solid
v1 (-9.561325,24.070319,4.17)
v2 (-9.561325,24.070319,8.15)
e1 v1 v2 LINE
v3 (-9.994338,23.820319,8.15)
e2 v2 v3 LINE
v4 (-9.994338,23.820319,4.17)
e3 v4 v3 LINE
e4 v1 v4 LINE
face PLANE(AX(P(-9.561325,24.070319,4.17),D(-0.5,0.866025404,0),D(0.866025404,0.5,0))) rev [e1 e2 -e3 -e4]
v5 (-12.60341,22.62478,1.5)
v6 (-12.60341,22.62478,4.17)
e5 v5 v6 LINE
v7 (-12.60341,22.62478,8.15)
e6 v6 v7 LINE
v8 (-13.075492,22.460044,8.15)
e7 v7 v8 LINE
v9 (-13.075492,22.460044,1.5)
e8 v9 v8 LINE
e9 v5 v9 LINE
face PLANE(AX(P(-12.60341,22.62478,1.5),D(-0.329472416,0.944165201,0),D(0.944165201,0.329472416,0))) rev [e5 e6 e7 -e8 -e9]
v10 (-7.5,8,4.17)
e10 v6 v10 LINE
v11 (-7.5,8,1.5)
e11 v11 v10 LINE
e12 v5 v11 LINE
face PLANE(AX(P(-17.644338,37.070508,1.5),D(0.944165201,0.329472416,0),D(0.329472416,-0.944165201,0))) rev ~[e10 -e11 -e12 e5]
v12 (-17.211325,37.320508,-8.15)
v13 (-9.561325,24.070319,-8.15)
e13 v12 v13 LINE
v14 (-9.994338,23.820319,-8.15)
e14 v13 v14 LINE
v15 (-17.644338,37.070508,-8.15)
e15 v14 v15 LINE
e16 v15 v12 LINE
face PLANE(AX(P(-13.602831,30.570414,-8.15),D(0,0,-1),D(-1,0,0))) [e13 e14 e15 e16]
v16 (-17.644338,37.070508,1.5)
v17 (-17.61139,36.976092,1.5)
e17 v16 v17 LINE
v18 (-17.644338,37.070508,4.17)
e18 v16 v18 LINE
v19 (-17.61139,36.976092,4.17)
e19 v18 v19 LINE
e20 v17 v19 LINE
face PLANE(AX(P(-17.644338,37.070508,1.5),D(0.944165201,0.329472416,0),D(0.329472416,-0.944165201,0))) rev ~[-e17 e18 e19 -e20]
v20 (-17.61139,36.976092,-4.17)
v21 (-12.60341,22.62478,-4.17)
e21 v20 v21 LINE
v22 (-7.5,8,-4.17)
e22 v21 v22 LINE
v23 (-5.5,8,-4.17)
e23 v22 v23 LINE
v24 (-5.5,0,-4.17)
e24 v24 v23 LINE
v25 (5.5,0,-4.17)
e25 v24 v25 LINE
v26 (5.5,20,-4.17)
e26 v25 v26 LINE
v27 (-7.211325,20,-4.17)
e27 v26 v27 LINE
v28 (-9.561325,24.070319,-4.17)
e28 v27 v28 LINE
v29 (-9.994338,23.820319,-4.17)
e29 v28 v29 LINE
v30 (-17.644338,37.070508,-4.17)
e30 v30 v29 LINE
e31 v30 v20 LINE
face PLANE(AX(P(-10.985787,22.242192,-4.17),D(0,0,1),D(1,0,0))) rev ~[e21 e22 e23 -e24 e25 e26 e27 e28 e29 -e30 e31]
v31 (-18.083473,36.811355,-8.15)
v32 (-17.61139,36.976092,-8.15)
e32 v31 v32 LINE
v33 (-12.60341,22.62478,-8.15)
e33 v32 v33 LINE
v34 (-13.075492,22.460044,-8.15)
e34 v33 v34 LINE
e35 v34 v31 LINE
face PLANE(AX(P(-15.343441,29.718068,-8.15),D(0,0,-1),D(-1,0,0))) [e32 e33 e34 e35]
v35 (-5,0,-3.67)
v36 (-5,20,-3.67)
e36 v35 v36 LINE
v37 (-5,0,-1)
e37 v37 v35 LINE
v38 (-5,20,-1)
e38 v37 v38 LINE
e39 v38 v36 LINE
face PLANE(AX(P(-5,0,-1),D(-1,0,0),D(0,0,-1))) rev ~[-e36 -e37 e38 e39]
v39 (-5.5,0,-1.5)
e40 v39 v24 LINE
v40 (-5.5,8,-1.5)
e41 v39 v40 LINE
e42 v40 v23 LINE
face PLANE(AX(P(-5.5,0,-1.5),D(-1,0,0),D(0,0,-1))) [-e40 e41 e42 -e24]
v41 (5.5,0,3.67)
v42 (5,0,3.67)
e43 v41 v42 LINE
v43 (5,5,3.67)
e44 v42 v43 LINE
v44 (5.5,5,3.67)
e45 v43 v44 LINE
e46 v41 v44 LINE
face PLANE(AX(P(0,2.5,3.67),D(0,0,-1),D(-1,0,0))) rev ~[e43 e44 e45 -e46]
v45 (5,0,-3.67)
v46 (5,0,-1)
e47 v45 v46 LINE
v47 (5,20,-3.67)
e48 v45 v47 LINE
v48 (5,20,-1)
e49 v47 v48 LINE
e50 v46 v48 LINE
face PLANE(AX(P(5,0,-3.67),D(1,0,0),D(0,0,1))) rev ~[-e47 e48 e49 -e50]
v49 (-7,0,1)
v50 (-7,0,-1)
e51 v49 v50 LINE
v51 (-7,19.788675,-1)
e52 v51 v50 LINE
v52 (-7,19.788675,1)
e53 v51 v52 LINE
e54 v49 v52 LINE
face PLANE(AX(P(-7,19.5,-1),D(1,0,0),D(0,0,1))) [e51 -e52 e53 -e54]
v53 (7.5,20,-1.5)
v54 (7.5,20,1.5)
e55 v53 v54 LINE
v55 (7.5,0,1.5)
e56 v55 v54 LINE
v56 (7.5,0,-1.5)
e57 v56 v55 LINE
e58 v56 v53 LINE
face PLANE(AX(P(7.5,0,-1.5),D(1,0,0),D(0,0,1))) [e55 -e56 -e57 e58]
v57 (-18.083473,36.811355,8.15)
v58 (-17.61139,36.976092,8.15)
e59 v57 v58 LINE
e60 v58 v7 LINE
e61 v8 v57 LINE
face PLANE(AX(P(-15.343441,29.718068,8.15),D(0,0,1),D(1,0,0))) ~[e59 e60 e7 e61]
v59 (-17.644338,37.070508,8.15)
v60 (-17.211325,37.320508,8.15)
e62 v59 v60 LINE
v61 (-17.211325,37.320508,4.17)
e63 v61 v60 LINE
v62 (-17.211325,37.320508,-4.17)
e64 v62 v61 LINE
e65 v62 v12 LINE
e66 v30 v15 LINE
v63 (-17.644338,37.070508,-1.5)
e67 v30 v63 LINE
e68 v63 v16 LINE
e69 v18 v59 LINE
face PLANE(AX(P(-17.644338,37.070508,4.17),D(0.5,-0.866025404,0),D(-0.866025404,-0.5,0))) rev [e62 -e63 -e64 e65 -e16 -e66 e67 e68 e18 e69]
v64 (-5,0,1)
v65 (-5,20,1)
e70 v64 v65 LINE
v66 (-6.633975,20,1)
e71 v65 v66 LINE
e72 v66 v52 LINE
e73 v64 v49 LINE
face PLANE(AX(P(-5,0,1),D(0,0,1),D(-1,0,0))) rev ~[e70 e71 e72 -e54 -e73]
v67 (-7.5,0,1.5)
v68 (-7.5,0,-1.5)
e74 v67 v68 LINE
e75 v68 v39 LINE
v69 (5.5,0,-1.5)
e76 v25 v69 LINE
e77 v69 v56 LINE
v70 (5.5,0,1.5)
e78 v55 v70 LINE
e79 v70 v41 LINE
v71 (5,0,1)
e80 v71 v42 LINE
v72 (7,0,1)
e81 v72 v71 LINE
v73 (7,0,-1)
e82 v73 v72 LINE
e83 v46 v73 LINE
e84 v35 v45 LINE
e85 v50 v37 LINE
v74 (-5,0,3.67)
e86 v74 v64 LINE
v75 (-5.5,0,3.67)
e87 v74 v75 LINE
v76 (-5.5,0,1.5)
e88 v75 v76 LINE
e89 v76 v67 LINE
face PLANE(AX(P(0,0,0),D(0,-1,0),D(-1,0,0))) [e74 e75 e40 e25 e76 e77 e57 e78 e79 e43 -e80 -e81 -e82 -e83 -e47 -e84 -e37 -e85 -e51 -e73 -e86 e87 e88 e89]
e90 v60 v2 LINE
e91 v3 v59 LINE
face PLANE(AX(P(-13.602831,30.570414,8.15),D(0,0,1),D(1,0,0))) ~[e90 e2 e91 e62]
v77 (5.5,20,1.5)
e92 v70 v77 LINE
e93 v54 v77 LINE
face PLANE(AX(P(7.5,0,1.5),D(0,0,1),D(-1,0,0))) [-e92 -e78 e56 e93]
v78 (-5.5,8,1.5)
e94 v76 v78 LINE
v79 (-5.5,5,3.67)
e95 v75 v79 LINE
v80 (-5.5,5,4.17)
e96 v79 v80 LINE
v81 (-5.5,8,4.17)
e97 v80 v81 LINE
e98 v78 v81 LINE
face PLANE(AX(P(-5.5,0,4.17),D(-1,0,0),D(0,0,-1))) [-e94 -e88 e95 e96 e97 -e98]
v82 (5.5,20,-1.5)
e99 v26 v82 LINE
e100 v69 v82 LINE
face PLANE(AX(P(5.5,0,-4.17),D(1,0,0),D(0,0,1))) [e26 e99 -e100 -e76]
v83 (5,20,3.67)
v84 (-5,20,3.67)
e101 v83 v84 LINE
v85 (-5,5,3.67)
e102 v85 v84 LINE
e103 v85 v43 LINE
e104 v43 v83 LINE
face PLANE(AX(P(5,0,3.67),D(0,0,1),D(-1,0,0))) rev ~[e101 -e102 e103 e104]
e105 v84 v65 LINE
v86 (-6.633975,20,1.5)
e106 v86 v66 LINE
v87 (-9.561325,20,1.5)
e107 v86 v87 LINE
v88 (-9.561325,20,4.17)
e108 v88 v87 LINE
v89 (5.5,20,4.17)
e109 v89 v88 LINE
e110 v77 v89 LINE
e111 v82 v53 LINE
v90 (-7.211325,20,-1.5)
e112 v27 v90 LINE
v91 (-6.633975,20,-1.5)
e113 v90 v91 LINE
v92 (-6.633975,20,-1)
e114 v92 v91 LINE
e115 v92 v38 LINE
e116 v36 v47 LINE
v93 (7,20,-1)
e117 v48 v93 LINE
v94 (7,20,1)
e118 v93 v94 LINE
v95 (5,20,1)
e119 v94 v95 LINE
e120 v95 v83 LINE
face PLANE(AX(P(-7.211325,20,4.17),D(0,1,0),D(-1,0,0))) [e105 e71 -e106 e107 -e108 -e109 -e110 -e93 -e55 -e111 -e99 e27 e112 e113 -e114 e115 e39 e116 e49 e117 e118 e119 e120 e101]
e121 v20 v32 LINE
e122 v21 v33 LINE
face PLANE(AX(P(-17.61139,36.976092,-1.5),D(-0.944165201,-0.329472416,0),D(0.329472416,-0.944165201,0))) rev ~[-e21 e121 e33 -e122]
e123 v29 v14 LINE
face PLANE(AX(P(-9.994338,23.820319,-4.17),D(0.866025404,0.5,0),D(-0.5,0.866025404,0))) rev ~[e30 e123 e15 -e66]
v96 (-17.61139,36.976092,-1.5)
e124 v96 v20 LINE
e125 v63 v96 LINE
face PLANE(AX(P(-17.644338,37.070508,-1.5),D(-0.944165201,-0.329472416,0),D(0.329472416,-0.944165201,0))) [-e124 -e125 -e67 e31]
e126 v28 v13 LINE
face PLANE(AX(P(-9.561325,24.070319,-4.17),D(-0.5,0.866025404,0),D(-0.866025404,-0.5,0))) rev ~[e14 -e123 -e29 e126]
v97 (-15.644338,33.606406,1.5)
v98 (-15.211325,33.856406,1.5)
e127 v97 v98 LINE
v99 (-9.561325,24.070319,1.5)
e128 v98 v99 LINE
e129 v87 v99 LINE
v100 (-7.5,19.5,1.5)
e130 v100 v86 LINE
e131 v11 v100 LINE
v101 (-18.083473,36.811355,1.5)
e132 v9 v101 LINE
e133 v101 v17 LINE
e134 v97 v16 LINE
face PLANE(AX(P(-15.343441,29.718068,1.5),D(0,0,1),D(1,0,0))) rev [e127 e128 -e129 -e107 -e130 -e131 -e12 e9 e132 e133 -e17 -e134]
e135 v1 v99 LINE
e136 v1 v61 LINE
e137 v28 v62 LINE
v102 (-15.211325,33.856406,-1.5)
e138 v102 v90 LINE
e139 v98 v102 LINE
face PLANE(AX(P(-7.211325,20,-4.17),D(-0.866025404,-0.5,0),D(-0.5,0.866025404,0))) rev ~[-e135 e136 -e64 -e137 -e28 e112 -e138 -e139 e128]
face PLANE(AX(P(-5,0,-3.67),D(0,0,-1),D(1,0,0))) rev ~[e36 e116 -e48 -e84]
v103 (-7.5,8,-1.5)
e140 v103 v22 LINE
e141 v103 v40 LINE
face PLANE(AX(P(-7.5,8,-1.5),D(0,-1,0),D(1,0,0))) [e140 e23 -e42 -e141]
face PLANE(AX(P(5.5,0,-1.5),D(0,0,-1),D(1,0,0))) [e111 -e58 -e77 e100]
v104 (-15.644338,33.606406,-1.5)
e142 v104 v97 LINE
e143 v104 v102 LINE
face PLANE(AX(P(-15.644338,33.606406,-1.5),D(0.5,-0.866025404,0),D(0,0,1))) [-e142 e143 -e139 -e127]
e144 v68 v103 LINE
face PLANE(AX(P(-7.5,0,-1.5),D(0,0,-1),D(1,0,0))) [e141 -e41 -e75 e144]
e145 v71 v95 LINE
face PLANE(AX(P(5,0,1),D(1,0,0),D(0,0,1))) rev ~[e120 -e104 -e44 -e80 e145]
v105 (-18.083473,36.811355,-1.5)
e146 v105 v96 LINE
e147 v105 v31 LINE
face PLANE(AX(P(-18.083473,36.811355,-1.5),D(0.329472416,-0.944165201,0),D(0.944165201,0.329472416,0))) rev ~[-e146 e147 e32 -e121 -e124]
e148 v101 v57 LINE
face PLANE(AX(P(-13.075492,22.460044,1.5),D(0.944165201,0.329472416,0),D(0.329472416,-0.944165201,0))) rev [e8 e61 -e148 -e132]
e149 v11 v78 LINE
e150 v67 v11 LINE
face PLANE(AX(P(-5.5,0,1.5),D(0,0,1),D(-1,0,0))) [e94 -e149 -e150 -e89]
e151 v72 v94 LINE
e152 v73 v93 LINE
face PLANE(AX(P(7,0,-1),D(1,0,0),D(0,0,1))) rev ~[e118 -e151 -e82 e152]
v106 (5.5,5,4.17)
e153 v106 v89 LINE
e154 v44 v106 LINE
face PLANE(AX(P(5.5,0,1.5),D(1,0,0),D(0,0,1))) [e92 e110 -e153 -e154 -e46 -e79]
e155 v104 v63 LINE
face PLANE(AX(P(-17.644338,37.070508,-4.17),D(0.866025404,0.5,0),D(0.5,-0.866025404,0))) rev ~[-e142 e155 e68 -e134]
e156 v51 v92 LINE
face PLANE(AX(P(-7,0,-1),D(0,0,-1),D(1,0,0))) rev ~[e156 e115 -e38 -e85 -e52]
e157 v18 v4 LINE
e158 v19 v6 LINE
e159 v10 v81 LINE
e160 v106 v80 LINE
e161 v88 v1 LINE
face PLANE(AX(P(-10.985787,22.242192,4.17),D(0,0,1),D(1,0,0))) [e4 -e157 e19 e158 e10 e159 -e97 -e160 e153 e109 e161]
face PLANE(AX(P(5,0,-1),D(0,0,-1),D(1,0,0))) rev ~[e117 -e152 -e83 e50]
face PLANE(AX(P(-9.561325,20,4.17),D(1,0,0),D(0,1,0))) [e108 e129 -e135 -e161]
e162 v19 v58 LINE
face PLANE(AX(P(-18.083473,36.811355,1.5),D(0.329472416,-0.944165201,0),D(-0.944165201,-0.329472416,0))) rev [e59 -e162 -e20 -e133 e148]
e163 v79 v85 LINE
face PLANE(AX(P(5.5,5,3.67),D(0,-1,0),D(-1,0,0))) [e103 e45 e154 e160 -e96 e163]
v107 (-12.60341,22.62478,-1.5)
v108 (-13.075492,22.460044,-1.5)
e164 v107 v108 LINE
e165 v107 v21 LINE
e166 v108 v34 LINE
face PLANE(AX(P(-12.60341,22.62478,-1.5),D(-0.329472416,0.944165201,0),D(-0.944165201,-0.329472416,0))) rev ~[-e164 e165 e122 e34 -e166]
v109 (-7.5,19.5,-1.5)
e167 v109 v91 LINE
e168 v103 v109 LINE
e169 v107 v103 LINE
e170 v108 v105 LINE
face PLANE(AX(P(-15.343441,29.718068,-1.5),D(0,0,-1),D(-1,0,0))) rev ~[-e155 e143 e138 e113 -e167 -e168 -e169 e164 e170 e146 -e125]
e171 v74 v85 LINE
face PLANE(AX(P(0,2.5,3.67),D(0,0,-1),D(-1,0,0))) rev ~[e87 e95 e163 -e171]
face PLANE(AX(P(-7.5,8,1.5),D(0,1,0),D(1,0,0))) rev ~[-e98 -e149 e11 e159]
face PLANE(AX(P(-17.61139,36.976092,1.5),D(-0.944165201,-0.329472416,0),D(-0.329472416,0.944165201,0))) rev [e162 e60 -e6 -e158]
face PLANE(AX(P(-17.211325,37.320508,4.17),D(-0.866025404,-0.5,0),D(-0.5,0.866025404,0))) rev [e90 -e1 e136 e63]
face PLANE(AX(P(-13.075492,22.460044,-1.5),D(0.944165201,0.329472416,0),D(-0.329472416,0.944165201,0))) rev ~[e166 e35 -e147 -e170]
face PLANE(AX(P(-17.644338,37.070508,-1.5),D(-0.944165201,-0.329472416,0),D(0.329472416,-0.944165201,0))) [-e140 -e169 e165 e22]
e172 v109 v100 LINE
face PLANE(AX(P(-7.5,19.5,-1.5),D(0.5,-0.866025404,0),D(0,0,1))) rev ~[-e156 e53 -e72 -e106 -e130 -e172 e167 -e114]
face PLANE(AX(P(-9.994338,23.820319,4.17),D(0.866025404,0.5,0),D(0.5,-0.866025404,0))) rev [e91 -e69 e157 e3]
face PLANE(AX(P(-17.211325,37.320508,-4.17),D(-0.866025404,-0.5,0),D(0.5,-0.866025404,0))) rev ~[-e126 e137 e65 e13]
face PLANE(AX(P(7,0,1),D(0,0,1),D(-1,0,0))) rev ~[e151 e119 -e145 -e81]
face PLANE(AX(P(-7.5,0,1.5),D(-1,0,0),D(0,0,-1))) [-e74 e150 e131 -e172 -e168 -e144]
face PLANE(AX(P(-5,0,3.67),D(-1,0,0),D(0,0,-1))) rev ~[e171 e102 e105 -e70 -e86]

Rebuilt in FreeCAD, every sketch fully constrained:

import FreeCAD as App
import Part
import Sketcher
Q = App.Units.Quantity


def add_polygon(sketch, points):
    """Adds a closed chain of lines whose ends are joined by coincident constraints."""
    first, n = sketch.GeometryCount, len(points)
    for a, b in zip(points, points[1:] + points[:1]):
        sketch.addGeometry(Part.LineSegment(App.Vector(*a, 0), App.Vector(*b, 0)), False)
    for i in range(n):
        sketch.addConstraint(Sketcher.Constraint("Coincident", first + i, 2, first + (i + 1) % n, 1))

doc = App.newDocument("Part")
body = doc.addObject("PartDesign::Body", "Body")

# Sketch on XZ plane
sketch1 = body.newObject("Sketcher::SketchObject", "Sketch")
sketch1.AttachmentSupport = (doc.getObject("XZ_Plane"), [""])
sketch1.MapMode = "FlatFace"
add_polygon(sketch1, [(-5.5, 4.2), (5.5, 4.2), (5.5, 1.5), (7.5, 1.5), (7.5, -1.5), (5.5, -1.5), (5.5, -4.2), (-5.5, -4.2), (-5.5, -1.5), (-7.5, -1.5), (-7.5, 1.5), (-5.5, 1.5)])  # lines 0-11
add_polygon(sketch1, [(-5, -1), (-5, -3.7), (5, -3.7), (5, -1), (7, -1), (7, 1), (5, 1), (5, 3.7), (-5, 3.7), (-5, 1), (-7, 1), (-7, -1)])  # lines 12-23
sketch1.addConstraint([
    Sketcher.Constraint("Horizontal", 0),
    Sketcher.Constraint("Vertical", 1),
    Sketcher.Constraint("Horizontal", 2),
    Sketcher.Constraint("Vertical", 3),
    Sketcher.Constraint("Horizontal", 4),
    Sketcher.Constraint("Vertical", 5),
    Sketcher.Constraint("Horizontal", 6),
    Sketcher.Constraint("Vertical", 7),
    Sketcher.Constraint("Horizontal", 8),
    Sketcher.Constraint("Vertical", 9),
    Sketcher.Constraint("Horizontal", 10),
    Sketcher.Constraint("Vertical", 11),
    Sketcher.Constraint("Vertical", 12),
    Sketcher.Constraint("Horizontal", 13),
    Sketcher.Constraint("Vertical", 14),
    Sketcher.Constraint("Horizontal", 15),
    Sketcher.Constraint("Vertical", 16),
    Sketcher.Constraint("Horizontal", 17),
    Sketcher.Constraint("Vertical", 18),
    Sketcher.Constraint("Horizontal", 19),
    Sketcher.Constraint("Vertical", 20),
    Sketcher.Constraint("Horizontal", 21),
    Sketcher.Constraint("Vertical", 22),
    Sketcher.Constraint("Horizontal", 23),
    Sketcher.Constraint("Symmetric", 0, 2, 6, 2, -1, 1),
    Sketcher.Constraint("Symmetric", 2, 2, 8, 2, -1, 1),
    Sketcher.Constraint("Symmetric", 4, 2, 10, 2, -1, 1),
    Sketcher.Constraint("Symmetric", 12, 2, 18, 2, -1, 1),
    Sketcher.Constraint("Symmetric", 14, 2, 20, 2, -1, 1),
    Sketcher.Constraint("Symmetric", 16, 2, 22, 2, -1, 1),
    Sketcher.Constraint("Symmetric", 4, 2, 7, 2, -2),
    Sketcher.Constraint("Symmetric", 17, 2, 20, 2, -2),
    Sketcher.Constraint("Equal", 10, 15),
    Sketcher.Constraint("Equal", 11, 12),
    Sketcher.Constraint("Equal", 23, 16),
    Sketcher.Constraint("DistanceX", 0, 1, 0, 2, 11.0),
    Sketcher.Constraint("DistanceX", 2, 1, 2, 2, 2.0),
    Sketcher.Constraint("DistanceX", 13, 1, 13, 2, 10.0),
    Sketcher.Constraint("DistanceY", 3, 2, 3, 1, 3.0),
    Sketcher.Constraint("DistanceY", 1, 2, 1, 1, 2.67),
])
pad1 = body.newObject("PartDesign::Pad", "Pad")
pad1.Profile = sketch1
pad1.Length = 20
pad1.Reversed = True

# Sketch on XY plane
sketch2 = body.newObject("Sketcher::SketchObject", "Sketch001")
sketch2.AttachmentSupport = (doc.getObject("XY_Plane"), [""])
sketch2.MapMode = "FlatFace"
sketch2.AttachmentOffset = App.Placement(App.Vector(0, 0, 3.67), App.Rotation())
add_polygon(sketch2, [(6, 5), (6, 0), (-6, 0), (-6, 5)])  # lines 0-3
sketch2.addConstraint([
    Sketcher.Constraint("Vertical", 0),
    Sketcher.Constraint("Horizontal", 1),
    Sketcher.Constraint("Vertical", 2),
    Sketcher.Constraint("Horizontal", 3),
    Sketcher.Constraint("Symmetric", 0, 2, 1, 2, -1, 1),
    Sketcher.Constraint("DistanceX", 1, 2, 1, 1, 11.0),
    Sketcher.Constraint("DistanceY", 0, 2, 0, 1, 5.0),
])
pocket1 = body.newObject("PartDesign::Pocket", "Pocket")
pocket1.Profile = sketch2
pocket1.Type = "UpToFirst"
pocket1.Reversed = True

# Sketch on XY plane
sketch3 = body.newObject("Sketcher::SketchObject", "Sketch002")
sketch3.AttachmentSupport = (doc.getObject("XY_Plane"), [""])
sketch3.MapMode = "FlatFace"
sketch3.AttachmentOffset = App.Placement(App.Vector(0, 0, -4.17), App.Rotation())
add_polygon(sketch3, [(-7.2, 20), (-5.5, 20), (-5.5, 19.5), (-7.5, 19.5), (-17.6, 37.1), (-17.2, 37.3)])  # lines 0-5
sketch3.addConstraint([
    Sketcher.Constraint("Horizontal", 0),
    Sketcher.Constraint("Vertical", 1),
    Sketcher.Constraint("Horizontal", 2),
    Sketcher.Constraint("Perpendicular", 3, 4),
    Sketcher.Constraint("Perpendicular", 4, 5),
    Sketcher.Constraint("DistanceX", 2, 2, 2, 1, 2.0),
    Sketcher.Constraint("Angle", 3, Q("120 deg")),
    Sketcher.Constraint("Distance", 5, 20.0),
    Sketcher.Constraint("DistanceY", 1, 2, 1, 1, 0.5),
    Sketcher.Constraint("DistanceY", -1, 1, 0, 2, 20.0),
    Sketcher.Constraint("Distance", 4, 0.5),
    Sketcher.Constraint("DistanceX", 0, 2, -1, 1, 5.5),
])
pad2 = body.newObject("PartDesign::Pad", "Pad001")
pad2.Profile = sketch3
pad2.Length = 8.34

# Sketch on XZ plane
sketch4 = body.newObject("Sketcher::SketchObject", "Sketch003")
sketch4.AttachmentSupport = (doc.getObject("XZ_Plane"), [""])
sketch4.MapMode = "FlatFace"
sketch4.AttachmentOffset = App.Placement(App.Vector(0, 0, -19.5), App.Rotation())
add_polygon(sketch4, [(-7, 1), (-7, -1), (-5.5, -1), (-5.5, 1)])  # lines 0-3
sketch4.addConstraint([
    Sketcher.Constraint("Vertical", 0),
    Sketcher.Constraint("Horizontal", 1),
    Sketcher.Constraint("Vertical", 2),
    Sketcher.Constraint("Horizontal", 3),
    Sketcher.Constraint("DistanceY", 0, 2, 0, 1, 2.0),
    Sketcher.Constraint("DistanceX", 1, 1, 1, 2, 1.5),
    Sketcher.Constraint("DistanceX", 0, 2, -1, 1, 7.0),
    Sketcher.Constraint("DistanceY", 0, 2, -1, 1, 1.0),
])
pocket2 = body.newObject("PartDesign::Pocket", "Pocket001")
pocket2.Profile = sketch4
pocket2.Type = "UpToFirst"

# Sketch on XY plane
sketch5 = body.newObject("Sketcher::SketchObject", "Sketch004")
sketch5.AttachmentSupport = (doc.getObject("XY_Plane"), [""])
sketch5.MapMode = "FlatFace"
sketch5.AttachmentOffset = App.Placement(App.Vector(0, 0, -4.17), App.Rotation())
add_polygon(sketch5, [(-17.2, 37.3), (-9.6, 24.1), (-10, 23.8), (-17.6, 37.1)])  # lines 0-3
sketch5.addConstraint([
    Sketcher.Constraint("Perpendicular", 0, 1),
    Sketcher.Constraint("Perpendicular", 1, 2),
    Sketcher.Constraint("Perpendicular", 2, 3),
    Sketcher.Constraint("Angle", 0, Q("-60 deg")),
    Sketcher.Constraint("Distance", 0, 15.3),
    Sketcher.Constraint("Distance", 1, 0.5),
    Sketcher.Constraint("DistanceY", -1, 1, 0, 2, 24.070319),
    Sketcher.Constraint("DistanceX", 0, 2, -1, 1, 9.561325),
])
pad3 = body.newObject("PartDesign::Pad", "Pad002")
pad3.Profile = sketch5
pad3.Length = 3.98
pad3.Reversed = True

# Sketch on XY plane
sketch6 = body.newObject("Sketcher::SketchObject", "Sketch005")
sketch6.AttachmentSupport = (doc.getObject("XY_Plane"), [""])
sketch6.MapMode = "FlatFace"
sketch6.AttachmentOffset = App.Placement(App.Vector(0, 0, -1.5), App.Rotation())
add_polygon(sketch6, [(-5.5, 19.5), (-5.5, 8), (-7.5, 8), (-17.6, 37.1), (-7.5, 19.5)])  # lines 0-4
sketch6.addConstraint([
    Sketcher.Constraint("Vertical", 0),
    Sketcher.Constraint("Horizontal", 1),
    Sketcher.Constraint("Horizontal", 4),
    Sketcher.Constraint("Vertical", 1, 2, 3, 2),
    Sketcher.Constraint("DistanceX", 1, 2, 1, 1, 2.0),
    Sketcher.Constraint("Angle", 3, Q("-60 deg")),
    Sketcher.Constraint("DistanceY", 0, 2, 0, 1, 11.5),
    Sketcher.Constraint("DistanceY", -1, 1, 0, 2, 8.0),
    Sketcher.Constraint("DistanceX", 0, 2, -1, 1, 5.5),
    Sketcher.Constraint("Distance", 2, 30.789642),
])
pad4 = body.newObject("PartDesign::Pad", "Pad003")
pad4.Profile = sketch6
pad4.Length = 2.67
pad4.Reversed = True
doc.recompute()

mirrored = body.newObject("PartDesign::Mirrored", "Mirrored")
mirrored.Originals = [pad3]
mirrored.MirrorPlane = (doc.getObject("XY_Plane"), [""])
body.Tip = mirrored

# Sketch on XY plane
sketch7 = body.newObject("Sketcher::SketchObject", "Sketch006")
sketch7.AttachmentSupport = (doc.getObject("XY_Plane"), [""])
sketch7.MapMode = "FlatFace"
sketch7.AttachmentOffset = App.Placement(App.Vector(0, 0, 1.5), App.Rotation())
add_polygon(sketch7, [(-17.6, 37.1), (-7.5, 8), (-5.5, 8), (-5.5, 19.5), (-7.5, 19.5)])  # lines 0-4
sketch7.addConstraint([
    Sketcher.Constraint("Horizontal", 1),
    Sketcher.Constraint("Vertical", 2),
    Sketcher.Constraint("Horizontal", 3),
    Sketcher.Constraint("Vertical", 0, 2, 3, 2),
    Sketcher.Constraint("DistanceX", 1, 1, 1, 2, 2.0),
    Sketcher.Constraint("Angle", 4, Q("120 deg")),
    Sketcher.Constraint("DistanceY", 2, 1, 2, 2, 11.5),
    Sketcher.Constraint("DistanceY", -1, 1, 0, 2, 8.0),
    Sketcher.Constraint("DistanceX", 0, 2, -1, 1, 7.5),
    Sketcher.Constraint("Distance", 0, 30.789642),
])
pad5 = body.newObject("PartDesign::Pad", "Pad004")
pad5.Profile = sketch7
pad5.Length = 2.67

# Sketch on an angled plane
sketch8 = body.newObject("Sketcher::SketchObject", "Sketch007")
sketch8.Placement = App.Placement(App.Vector(2.818748, 1.627405, 0), App.Rotation(App.Vector(0, 0, 1), App.Vector(-0.5, 0.866025404, 0), App.Vector(-0.866025404, -0.5, 0), "ZXY"))
add_polygon(sketch8, [(-1.5, 36.9), (-1.5, 20.6), (1.5, 20.6), (1.5, 36.9)])  # lines 0-3
sketch8.addConstraint([
    Sketcher.Constraint("Vertical", 0),
    Sketcher.Constraint("Horizontal", 1),
    Sketcher.Constraint("Vertical", 2),
    Sketcher.Constraint("Horizontal", 3),
    Sketcher.Constraint("DistanceX", 1, 1, 1, 2, 3.0),
    Sketcher.Constraint("DistanceX", 0, 2, -1, 1, 1.5),
    Sketcher.Constraint("DistanceY", 0, 2, 0, 1, 16.288675),
    Sketcher.Constraint("DistanceY", -1, 1, 2, 2, 36.926171),
])
pocket3 = body.newObject("PartDesign::Pocket", "Pocket002")
pocket3.Profile = sketch8
pocket3.Length = 1

# Sketch on XY plane
sketch9 = body.newObject("Sketcher::SketchObject", "Sketch008")
sketch9.AttachmentSupport = (doc.getObject("XY_Plane"), [""])
sketch9.MapMode = "FlatFace"
sketch9.AttachmentOffset = App.Placement(App.Vector(0, 0, -1.5), App.Rotation())
add_polygon(sketch9, [(-12.6, 22.62), (-17.61, 36.98), (-18.08, 36.81), (-13.08, 22.46)])  # lines 0-3
sketch9.addConstraint([
    Sketcher.Constraint("Perpendicular", 0, 1),
    Sketcher.Constraint("Perpendicular", 1, 2),
    Sketcher.Constraint("Perpendicular", 2, 3),
    Sketcher.Constraint("Distance", 0, 15.2),
    Sketcher.Constraint("Distance", 1, 0.5),
    Sketcher.Constraint("DistanceX", 0, 2, 2, 2, 4.535898),
    Sketcher.Constraint("DistanceX", 0, 2, -1, 1, 17.61139),
    Sketcher.Constraint("DistanceY", -1, 1, 0, 2, 36.976092),
])
pad6 = body.newObject("PartDesign::Pad", "Pad005")
pad6.Profile = sketch9
pad6.Length = 6.65
pad6.Reversed = True
doc.recompute()

mirrored2 = body.newObject("PartDesign::Mirrored", "Mirrored001")
mirrored2.Originals = [pad6]
mirrored2.MirrorPlane = (doc.getObject("XY_Plane"), [""])
body.Tip = mirrored2

# Sketch on XY plane
sketch10 = body.newObject("Sketcher::SketchObject", "Sketch009")
sketch10.AttachmentSupport = (doc.getObject("XY_Plane"), [""])
sketch10.MapMode = "FlatFace"
sketch10.AttachmentOffset = App.Placement(App.Vector(0, 0, 4.17), App.Rotation())
add_polygon(sketch10, [(-9.6, 20), (-7.2, 20), (-9.6, 24.1)])  # lines 0-2
sketch10.addConstraint([
    Sketcher.Constraint("Horizontal", 0),
    Sketcher.Constraint("Vertical", 2),
    Sketcher.Constraint("Angle", 1, Q("120 deg")),
    Sketcher.Constraint("DistanceY", -1, 1, 0, 2, 20.0),
    Sketcher.Constraint("Distance", 1, 4.7),
    Sketcher.Constraint("DistanceX", 0, 2, -1, 1, 7.211325),
])
pocket4 = body.newObject("PartDesign::Pocket", "Pocket003")
pocket4.Profile = sketch10
pocket4.Type = "UpToFirst"

doc.recompute()
